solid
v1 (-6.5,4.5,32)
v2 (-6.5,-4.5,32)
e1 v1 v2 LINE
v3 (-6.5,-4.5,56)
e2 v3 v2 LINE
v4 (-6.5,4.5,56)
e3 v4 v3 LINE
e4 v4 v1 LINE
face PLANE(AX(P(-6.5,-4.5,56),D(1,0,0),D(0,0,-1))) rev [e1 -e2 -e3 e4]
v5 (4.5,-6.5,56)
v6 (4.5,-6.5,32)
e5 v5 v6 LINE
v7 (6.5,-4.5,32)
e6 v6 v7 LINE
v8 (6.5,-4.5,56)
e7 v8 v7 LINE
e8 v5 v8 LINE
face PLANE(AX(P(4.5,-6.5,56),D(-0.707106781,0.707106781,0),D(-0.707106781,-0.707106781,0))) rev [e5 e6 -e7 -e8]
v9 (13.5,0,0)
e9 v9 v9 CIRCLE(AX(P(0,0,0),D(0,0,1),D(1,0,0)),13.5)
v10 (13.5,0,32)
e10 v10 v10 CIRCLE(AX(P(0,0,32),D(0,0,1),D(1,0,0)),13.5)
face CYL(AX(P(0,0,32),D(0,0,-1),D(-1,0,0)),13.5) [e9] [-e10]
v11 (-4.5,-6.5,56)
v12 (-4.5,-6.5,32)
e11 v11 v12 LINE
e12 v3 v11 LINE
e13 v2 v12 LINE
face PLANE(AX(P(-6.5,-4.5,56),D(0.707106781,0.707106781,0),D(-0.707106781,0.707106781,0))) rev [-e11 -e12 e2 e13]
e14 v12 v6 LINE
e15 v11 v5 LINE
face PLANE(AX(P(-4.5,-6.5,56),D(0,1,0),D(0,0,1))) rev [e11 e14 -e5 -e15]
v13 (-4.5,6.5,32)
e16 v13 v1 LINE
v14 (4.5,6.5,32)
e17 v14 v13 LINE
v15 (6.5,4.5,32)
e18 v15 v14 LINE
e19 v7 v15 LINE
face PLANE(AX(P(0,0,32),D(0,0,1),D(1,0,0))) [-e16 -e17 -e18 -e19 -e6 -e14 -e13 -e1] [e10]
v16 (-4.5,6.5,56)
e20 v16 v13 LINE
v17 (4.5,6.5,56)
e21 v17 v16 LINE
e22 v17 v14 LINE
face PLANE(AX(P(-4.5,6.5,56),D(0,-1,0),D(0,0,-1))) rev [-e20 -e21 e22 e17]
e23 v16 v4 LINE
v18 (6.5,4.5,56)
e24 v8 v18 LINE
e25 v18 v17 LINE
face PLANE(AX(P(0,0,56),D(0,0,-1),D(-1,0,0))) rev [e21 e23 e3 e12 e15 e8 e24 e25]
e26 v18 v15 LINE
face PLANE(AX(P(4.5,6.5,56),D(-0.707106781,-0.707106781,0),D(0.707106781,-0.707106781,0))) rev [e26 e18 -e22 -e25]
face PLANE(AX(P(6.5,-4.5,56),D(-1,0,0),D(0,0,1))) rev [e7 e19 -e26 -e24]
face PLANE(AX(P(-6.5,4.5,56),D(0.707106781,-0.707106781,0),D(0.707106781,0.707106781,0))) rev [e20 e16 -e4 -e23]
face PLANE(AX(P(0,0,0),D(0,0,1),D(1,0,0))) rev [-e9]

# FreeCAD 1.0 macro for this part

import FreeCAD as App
import Part
import Sketcher

V = App.Vector
Q = App.Units.Quantity

doc = App.newDocument("Part")
body = doc.addObject("PartDesign::Body", "Body")

# Sketch on XY plane
sketch1 = body.newObject("Sketcher::SketchObject", "Sketch")
sketch1.AttachmentSupport = (doc.getObject("XY_Plane"), [""])
sketch1.MapMode = "FlatFace"
sketch1.addGeometry(Part.Circle(V(0, 0, 0), V(0, 0, 1), 14), False)
sketch1.addConstraint([
    Sketcher.Constraint("Coincident", 0, 3, -1, 1),
    Sketcher.Constraint("Diameter", 0, Q("27 mm")),
])
pad1 = body.newObject("PartDesign::Pad", "Pad")
pad1.Profile = sketch1
pad1.Length = 32

# Sketch on XY plane
sketch2 = body.newObject("Sketcher::SketchObject", "Sketch001")
sketch2.AttachmentSupport = (doc.getObject("XY_Plane"), [""])
sketch2.MapMode = "FlatFace"
sketch2.AttachmentOffset = App.Placement(V(0, 0, 32), App.Rotation())
sketch2.addGeometry([
    Part.LineSegment(V(-4.5, 6.5, 0), V(-6.5, 4.5, 0)),  # 0
    Part.LineSegment(V(-6.5, 4.5, 0), V(-6.5, -4.5, 0)),  # 1
    Part.LineSegment(V(-6.5, -4.5, 0), V(-4.5, -6.5, 0)),  # 2
    Part.LineSegment(V(-4.5, -6.5, 0), V(4.5, -6.5, 0)),  # 3
    Part.LineSegment(V(4.5, -6.5, 0), V(6.5, -4.5, 0)),  # 4
    Part.LineSegment(V(6.5, -4.5, 0), V(6.5, 4.5, 0)),  # 5
    Part.LineSegment(V(6.5, 4.5, 0), V(4.5, 6.5, 0)),  # 6
    Part.LineSegment(V(4.5, 6.5, 0), V(-4.5, 6.5, 0)),  # 7
], False)
sketch2.addConstraint([
    Sketcher.Constraint("Coincident", 0, 2, 1, 1),
    Sketcher.Constraint("Coincident", 1, 2, 2, 1),
    Sketcher.Constraint("Coincident", 2, 2, 3, 1),
    Sketcher.Constraint("Coincident", 3, 2, 4, 1),
    Sketcher.Constraint("Coincident", 4, 2, 5, 1),
    Sketcher.Constraint("Coincident", 5, 2, 6, 1),
    Sketcher.Constraint("Coincident", 6, 2, 7, 1),
    Sketcher.Constraint("Coincident", 7, 2, 0, 1),
    Sketcher.Constraint("Vertical", 1),
    Sketcher.Constraint("Horizontal", 3),
    Sketcher.Constraint("Vertical", 5),
    Sketcher.Constraint("Horizontal", 7),
    Sketcher.Constraint("Symmetric", 0, 2, 4, 2, -1, 1),
    Sketcher.Constraint("Symmetric", 2, 2, 6, 2, -1, 1),
    Sketcher.Constraint("Perpendicular", 0, 2),
    Sketcher.Constraint("Perpendicular", 2, 4),
    Sketcher.Constraint("Perpendicular", 4, 6),
    Sketcher.Constraint("Horizontal", 1, 2, 4, 2),
    Sketcher.Constraint("Vertical", 3, 2, 6, 2),
    Sketcher.Constraint("Equal", 7, 1),
    Sketcher.Constraint("DistanceX", 3, 1, 3, 2, Q("9 mm")),
    Sketcher.Constraint("DistanceX", 1, 2, 2, 2, Q("2 mm")),
])
pad2 = body.newObject("PartDesign::Pad", "Pad001")
pad2.Profile = sketch2
pad2.Length = 24

doc.recompute()
